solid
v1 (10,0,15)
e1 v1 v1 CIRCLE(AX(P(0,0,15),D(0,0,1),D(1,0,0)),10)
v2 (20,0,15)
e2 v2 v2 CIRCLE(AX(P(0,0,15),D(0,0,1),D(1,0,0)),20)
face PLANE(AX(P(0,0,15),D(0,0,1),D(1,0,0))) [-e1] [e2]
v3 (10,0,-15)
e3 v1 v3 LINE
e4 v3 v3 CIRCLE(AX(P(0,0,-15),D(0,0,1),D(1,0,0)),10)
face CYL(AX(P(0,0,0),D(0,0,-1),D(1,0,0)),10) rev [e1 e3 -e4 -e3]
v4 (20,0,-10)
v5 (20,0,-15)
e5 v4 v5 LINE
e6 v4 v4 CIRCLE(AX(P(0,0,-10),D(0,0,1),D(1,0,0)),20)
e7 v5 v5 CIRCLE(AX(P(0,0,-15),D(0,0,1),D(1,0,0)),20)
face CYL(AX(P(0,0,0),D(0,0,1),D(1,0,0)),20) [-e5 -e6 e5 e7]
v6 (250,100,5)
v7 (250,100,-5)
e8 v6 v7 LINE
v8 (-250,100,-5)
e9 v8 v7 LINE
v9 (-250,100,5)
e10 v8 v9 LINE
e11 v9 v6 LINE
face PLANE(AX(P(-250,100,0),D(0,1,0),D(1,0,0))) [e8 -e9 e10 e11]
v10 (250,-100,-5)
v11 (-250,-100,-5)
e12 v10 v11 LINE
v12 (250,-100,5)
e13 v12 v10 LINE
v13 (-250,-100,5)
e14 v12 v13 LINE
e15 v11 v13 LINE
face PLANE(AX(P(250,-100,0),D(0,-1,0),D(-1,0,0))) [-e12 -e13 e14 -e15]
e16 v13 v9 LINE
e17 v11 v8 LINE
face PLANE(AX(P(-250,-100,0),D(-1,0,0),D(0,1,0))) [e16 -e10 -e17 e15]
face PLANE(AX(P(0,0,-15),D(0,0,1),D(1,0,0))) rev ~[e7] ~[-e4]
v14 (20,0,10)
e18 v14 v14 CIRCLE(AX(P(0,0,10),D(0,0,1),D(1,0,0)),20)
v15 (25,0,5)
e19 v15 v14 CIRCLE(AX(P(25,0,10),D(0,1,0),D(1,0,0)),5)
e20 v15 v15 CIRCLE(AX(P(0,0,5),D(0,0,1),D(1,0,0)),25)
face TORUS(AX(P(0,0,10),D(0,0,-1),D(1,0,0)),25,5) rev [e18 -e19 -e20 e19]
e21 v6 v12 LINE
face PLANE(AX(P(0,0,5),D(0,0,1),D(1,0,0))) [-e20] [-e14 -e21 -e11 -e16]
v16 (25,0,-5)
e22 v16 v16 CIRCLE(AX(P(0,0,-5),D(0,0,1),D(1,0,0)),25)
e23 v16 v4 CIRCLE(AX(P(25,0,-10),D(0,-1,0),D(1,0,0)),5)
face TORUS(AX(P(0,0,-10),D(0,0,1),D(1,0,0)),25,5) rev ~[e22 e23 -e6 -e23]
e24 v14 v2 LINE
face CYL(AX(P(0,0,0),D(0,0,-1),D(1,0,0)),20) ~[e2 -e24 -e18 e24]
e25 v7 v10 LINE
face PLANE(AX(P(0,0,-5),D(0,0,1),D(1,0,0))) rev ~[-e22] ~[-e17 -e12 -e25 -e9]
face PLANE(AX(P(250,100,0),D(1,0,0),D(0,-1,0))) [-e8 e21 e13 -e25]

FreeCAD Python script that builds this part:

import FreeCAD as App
import Part
import Sketcher

V = App.Vector


def edges_at(feature, points):
    """Names of the edges that pass closest to the given points."""
    edges = feature.Shape.Edges
    near = lambda p: min(range(len(edges)), key=lambda i: edges[i].distToShape(Part.Vertex(*p))[0])
    return sorted({f"Edge{near(p) + 1}" for p in points})


def add_polygon(sketch, points):
    """Adds a closed chain of lines whose ends are joined by coincident constraints."""
    first, n = sketch.GeometryCount, len(points)
    for a, b in zip(points, points[1:] + points[:1]):
        sketch.addGeometry(Part.LineSegment(App.Vector(*a, 0), App.Vector(*b, 0)), False)
    for i in range(n):
        sketch.addConstraint(Sketcher.Constraint("Coincident", first + i, 2, first + (i + 1) % n, 1))

doc = App.newDocument("Part")
body = doc.addObject("PartDesign::Body", "Body")

sketch1 = doc.addObject("Sketcher::SketchObject", "Sketch")
body.addObject(sketch1)
sketch1.AttachmentSupport = (doc.XY_Plane, [""])
sketch1.MapMode = "FlatFace"
add_polygon(sketch1, [(250, 100), (-250, 100), (-250, -100), (250, -100)])
sketch1.addGeometry(Part.Circle(V(0, 0, 0), V(0, 0, 1), 20), False)
sketch1.addConstraint([
    Sketcher.Constraint("Horizontal", 0),
    Sketcher.Constraint("Vertical", 1),
    Sketcher.Constraint("Horizontal", 2),
    Sketcher.Constraint("Vertical", 3),
    Sketcher.Constraint("Coincident", 4, 3, -1, 1),
    Sketcher.Constraint("Symmetric", 0, 2, 2, 2, -1, 1),
    Sketcher.Constraint("Diameter", 4, 40.0),
    Sketcher.Constraint("DistanceX", 0, 2, 0, 1, 500.0),
    Sketcher.Constraint("DistanceY", 1, 2, 1, 1, 200.0),
])
pad1 = doc.addObject("PartDesign::Pad", "Pad")
body.addObject(pad1)
pad1.Profile = sketch1
pad1.Length = 10
pad1.Midplane = True

sketch2 = doc.addObject("Sketcher::SketchObject", "Sketch001")
body.addObject(sketch2)
sketch2.AttachmentSupport = (doc.XY_Plane, [""])
sketch2.MapMode = "FlatFace"
sketch2.addGeometry([
    Part.Circle(V(0, 0, 0), V(0, 0, 1), 20),
    Part.Circle(V(0, 0, 0), V(0, 0, 1), 10),
], False)
sketch2.addConstraint([
    Sketcher.Constraint("Coincident", 0, 3, -1, 1),
    Sketcher.Constraint("Coincident", 1, 3, -1, 1),
    Sketcher.Constraint("Diameter", 0, 40.0),
    Sketcher.Constraint("Diameter", 1, 20.0),
])
pad2 = doc.addObject("PartDesign::Pad", "Pad001")
body.addObject(pad2)
pad2.Profile = sketch2
pad2.Length = 30
pad2.Midplane = True
doc.recompute()

fillet = doc.addObject("PartDesign::Fillet", "Fillet")
body.addObject(fillet)
fillet.Base = (pad2, edges_at(pad2, [(-18.646, 7.232, 5), (-18.646, -7.232, -5)]))
fillet.Radius = 5

doc.recompute()
